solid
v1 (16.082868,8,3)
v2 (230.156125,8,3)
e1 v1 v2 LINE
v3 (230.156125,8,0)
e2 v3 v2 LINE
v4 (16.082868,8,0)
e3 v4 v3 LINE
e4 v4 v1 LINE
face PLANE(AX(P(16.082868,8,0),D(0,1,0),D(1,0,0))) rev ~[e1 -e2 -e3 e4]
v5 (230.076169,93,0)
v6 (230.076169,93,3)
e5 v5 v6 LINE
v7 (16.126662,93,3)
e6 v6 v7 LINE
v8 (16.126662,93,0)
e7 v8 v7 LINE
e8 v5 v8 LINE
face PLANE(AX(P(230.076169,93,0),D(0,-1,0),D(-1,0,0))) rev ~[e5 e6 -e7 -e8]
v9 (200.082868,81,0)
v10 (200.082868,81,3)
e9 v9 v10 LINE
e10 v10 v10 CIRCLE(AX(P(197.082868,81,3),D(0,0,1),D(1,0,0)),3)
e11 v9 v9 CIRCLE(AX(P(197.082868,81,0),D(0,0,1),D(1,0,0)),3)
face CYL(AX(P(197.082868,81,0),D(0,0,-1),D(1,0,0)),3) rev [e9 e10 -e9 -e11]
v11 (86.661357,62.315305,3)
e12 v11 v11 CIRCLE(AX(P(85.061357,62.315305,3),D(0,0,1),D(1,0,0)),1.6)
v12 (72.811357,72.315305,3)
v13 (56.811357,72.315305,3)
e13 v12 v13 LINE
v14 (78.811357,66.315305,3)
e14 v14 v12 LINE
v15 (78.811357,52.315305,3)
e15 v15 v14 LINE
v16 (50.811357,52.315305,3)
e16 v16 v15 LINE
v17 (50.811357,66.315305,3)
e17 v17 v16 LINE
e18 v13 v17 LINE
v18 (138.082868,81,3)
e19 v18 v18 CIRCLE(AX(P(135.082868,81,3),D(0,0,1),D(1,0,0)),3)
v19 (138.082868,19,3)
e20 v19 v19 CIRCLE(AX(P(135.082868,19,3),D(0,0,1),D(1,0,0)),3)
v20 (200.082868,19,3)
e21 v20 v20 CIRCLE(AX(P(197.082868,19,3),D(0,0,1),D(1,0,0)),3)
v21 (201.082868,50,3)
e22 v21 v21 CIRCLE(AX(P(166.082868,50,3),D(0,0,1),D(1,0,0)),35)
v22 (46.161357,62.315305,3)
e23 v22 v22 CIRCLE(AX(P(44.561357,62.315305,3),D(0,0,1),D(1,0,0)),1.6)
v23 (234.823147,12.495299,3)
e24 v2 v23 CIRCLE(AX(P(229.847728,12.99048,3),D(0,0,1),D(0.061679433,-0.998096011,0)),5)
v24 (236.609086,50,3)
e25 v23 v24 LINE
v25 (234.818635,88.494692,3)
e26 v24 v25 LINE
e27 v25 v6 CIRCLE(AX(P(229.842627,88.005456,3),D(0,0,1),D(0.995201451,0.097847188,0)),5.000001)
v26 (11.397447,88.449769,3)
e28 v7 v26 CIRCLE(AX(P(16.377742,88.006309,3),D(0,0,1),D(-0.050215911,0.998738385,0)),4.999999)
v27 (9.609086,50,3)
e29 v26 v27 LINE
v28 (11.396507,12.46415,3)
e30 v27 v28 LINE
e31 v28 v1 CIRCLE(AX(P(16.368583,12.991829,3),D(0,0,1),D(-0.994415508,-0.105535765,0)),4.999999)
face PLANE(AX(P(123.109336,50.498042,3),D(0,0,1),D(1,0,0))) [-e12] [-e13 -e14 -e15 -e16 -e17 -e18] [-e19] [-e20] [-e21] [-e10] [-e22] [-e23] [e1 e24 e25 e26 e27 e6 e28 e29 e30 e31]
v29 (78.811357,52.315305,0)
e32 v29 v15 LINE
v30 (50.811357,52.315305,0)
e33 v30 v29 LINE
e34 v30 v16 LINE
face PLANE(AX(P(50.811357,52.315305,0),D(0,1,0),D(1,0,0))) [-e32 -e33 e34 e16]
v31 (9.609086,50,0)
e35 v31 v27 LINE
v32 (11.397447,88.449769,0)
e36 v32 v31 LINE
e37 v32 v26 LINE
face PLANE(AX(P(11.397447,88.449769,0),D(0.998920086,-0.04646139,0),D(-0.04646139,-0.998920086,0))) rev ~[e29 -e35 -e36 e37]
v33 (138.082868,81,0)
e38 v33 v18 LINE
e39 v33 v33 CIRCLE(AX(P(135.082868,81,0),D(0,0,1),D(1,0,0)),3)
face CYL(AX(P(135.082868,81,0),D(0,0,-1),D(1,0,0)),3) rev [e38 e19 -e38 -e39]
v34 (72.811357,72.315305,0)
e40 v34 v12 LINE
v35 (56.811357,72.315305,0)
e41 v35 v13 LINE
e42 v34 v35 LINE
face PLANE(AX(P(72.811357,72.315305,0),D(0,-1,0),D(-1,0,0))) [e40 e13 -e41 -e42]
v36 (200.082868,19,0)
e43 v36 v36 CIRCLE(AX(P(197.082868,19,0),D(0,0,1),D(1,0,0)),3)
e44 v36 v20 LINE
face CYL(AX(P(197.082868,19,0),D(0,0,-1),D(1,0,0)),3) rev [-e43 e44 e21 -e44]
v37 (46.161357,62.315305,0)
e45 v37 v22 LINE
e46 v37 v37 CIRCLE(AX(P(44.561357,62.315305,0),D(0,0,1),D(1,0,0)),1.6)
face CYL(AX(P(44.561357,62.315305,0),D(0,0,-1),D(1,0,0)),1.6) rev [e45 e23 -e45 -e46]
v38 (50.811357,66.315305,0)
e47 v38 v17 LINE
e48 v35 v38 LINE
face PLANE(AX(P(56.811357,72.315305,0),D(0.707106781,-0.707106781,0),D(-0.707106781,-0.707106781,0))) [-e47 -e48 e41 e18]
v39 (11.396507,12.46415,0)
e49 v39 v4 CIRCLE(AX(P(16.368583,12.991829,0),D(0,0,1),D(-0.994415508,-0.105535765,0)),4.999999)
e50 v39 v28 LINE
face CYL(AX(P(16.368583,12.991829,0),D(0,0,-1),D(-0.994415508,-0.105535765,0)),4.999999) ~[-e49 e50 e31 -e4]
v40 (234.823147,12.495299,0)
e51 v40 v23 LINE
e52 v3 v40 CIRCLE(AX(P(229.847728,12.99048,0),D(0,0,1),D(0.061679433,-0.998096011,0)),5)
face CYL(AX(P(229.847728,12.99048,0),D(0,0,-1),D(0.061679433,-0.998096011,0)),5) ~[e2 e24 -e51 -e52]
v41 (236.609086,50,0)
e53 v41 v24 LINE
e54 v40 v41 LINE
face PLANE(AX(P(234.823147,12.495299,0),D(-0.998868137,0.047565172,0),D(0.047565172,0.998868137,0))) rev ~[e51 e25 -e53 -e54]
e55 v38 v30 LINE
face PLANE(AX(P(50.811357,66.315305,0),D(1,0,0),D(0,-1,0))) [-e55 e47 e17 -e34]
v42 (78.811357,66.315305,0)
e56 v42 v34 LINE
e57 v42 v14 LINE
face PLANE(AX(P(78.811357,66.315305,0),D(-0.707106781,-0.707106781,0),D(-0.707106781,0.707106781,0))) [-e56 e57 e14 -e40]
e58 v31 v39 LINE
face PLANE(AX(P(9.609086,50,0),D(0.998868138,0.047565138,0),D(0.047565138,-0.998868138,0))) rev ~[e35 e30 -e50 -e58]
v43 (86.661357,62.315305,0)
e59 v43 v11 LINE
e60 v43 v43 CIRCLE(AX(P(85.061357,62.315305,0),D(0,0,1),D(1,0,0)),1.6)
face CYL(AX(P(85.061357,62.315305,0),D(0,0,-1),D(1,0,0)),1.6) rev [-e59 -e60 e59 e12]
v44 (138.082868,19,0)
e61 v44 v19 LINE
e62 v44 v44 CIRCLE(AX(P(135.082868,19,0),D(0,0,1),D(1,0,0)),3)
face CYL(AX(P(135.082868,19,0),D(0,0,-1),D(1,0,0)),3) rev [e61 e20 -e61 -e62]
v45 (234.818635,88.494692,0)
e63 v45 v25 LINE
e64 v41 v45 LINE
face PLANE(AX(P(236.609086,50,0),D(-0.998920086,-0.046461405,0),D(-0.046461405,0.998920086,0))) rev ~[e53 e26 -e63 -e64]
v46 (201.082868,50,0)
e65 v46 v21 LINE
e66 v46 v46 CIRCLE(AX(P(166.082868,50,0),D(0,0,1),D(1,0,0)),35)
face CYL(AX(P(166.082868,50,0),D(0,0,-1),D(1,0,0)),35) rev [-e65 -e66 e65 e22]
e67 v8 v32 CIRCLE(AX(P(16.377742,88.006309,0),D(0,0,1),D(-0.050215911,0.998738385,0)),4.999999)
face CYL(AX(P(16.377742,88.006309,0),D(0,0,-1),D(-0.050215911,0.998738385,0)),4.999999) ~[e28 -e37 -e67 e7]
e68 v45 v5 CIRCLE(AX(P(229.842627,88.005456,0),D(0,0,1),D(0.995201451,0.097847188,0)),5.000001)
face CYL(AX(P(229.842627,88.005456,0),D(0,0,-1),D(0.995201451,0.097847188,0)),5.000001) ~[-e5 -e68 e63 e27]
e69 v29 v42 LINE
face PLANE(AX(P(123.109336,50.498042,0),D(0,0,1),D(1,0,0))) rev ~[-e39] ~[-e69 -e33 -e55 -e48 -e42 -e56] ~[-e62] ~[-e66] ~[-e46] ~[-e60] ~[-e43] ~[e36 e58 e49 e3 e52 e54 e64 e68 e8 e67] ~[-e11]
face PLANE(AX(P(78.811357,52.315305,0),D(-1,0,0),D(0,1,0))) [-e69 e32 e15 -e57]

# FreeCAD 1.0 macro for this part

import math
import FreeCAD as App
import Part
import Sketcher
from FreeCAD import Vector

doc = App.newDocument("Part")
body = doc.addObject("PartDesign::Body", "Body")

# Sketch on XY plane
sketch1 = doc.addObject("Sketcher::SketchObject", "Sketch")
body.addObject(sketch1)
sketch1.AttachmentSupport = (doc.XY_Plane, [""])
sketch1.MapMode = "FlatFace"
sketch1.addGeometry([
    Part.LineSegment(Vector(16.1, 8, 0), Vector(230.2, 8, 0)),  # 0
    Part.ArcOfCircle(Part.Circle(Vector(229.8, 13, 0), Vector(0, 0, 1), 5), math.radians(-86), math.radians(-6)),  # 1
    Part.LineSegment(Vector(234.8, 12.5, 0), Vector(236.6, 50, 0)),  # 2
    Part.LineSegment(Vector(236.6, 50, 0), Vector(234.8, 88.5, 0)),  # 3
    Part.ArcOfCircle(Part.Circle(Vector(229.8, 88, 0), Vector(0, 0, 1), 5), math.radians(6), math.radians(87)),  # 4
    Part.LineSegment(Vector(230.1, 93, 0), Vector(16.1, 93, 0)),  # 5
    Part.ArcOfCircle(Part.Circle(Vector(16.4, 88, 0), Vector(0, 0, 1), 5), math.radians(93), math.radians(175)),  # 6
    Part.LineSegment(Vector(11.4, 88.4, 0), Vector(9.6, 50, 0)),  # 7
    Part.LineSegment(Vector(9.6, 50, 0), Vector(11.4, 12.5, 0)),  # 8
    Part.ArcOfCircle(Part.Circle(Vector(16.4, 13, 0), Vector(0, 0, 1), 5), math.radians(-174), math.radians(-93)),  # 9
    Part.Circle(Vector(135.1, 19, 0), Vector(0, 0, 1), 3),  # 10
    Part.Circle(Vector(197.1, 19, 0), Vector(0, 0, 1), 3),  # 11
    Part.Circle(Vector(44.6, 62.3, 0), Vector(0, 0, 1), 1.6),  # 12
    Part.LineSegment(Vector(72.8, 72.3, 0), Vector(78.8, 66.3, 0)),  # 13
    Part.LineSegment(Vector(78.8, 66.3, 0), Vector(78.8, 52.3, 0)),  # 14
    Part.LineSegment(Vector(78.8, 52.3, 0), Vector(50.8, 52.3, 0)),  # 15
    Part.LineSegment(Vector(50.8, 52.3, 0), Vector(50.8, 66.3, 0)),  # 16
    Part.LineSegment(Vector(50.8, 66.3, 0), Vector(56.8, 72.3, 0)),  # 17
    Part.LineSegment(Vector(56.8, 72.3, 0), Vector(72.8, 72.3, 0)),  # 18
    Part.Circle(Vector(85.1, 62.3, 0), Vector(0, 0, 1), 1.6),  # 19
    Part.Circle(Vector(166.1, 50, 0), Vector(0, 0, 1), 35),  # 20
    Part.Circle(Vector(135.1, 81, 0), Vector(0, 0, 1), 3),  # 21
    Part.Circle(Vector(197.1, 81, 0), Vector(0, 0, 1), 3),  # 22
], False)
sketch1.addConstraint([
    Sketcher.Constraint("Coincident", 0, 2, 1, 1),
    Sketcher.Constraint("Coincident", 1, 2, 2, 1),
    Sketcher.Constraint("Coincident", 2, 2, 3, 1),
    Sketcher.Constraint("Coincident", 3, 2, 4, 1),
    Sketcher.Constraint("Coincident", 4, 2, 5, 1),
    Sketcher.Constraint("Coincident", 5, 2, 6, 1),
    Sketcher.Constraint("Coincident", 6, 2, 7, 1),
    Sketcher.Constraint("Coincident", 7, 2, 8, 1),
    Sketcher.Constraint("Coincident", 8, 2, 9, 1),
    Sketcher.Constraint("Coincident", 9, 2, 0, 1),
    Sketcher.Constraint("Coincident", 13, 2, 14, 1),
    Sketcher.Constraint("Coincident", 14, 2, 15, 1),
    Sketcher.Constraint("Coincident", 15, 2, 16, 1),
    Sketcher.Constraint("Coincident", 16, 2, 17, 1),
    Sketcher.Constraint("Coincident", 17, 2, 18, 1),
    Sketcher.Constraint("Coincident", 18, 2, 13, 1),
    Sketcher.Constraint("Horizontal", 0),
    Sketcher.Constraint("Horizontal", 5),
    Sketcher.Constraint("Vertical", 14),
    Sketcher.Constraint("Horizontal", 15),
    Sketcher.Constraint("Vertical", 16),
    Sketcher.Constraint("Horizontal", 18),
    Sketcher.Constraint("Equal", 1, 4),
    Sketcher.Constraint("Equal", 1, 6),
    Sketcher.Constraint("Equal", 6, 9),
    Sketcher.Constraint("Equal", 10, 11),
    Sketcher.Constraint("Equal", 12, 19),
    Sketcher.Constraint("Equal", 11, 21),
    Sketcher.Constraint("Equal", 21, 22),
    Sketcher.Constraint("Perpendicular", 13, 17),
    Sketcher.Constraint("Horizontal", 10, 3, 11, 3),
    Sketcher.Constraint("Horizontal", 12, 3, 19, 3),
    Sketcher.Constraint("Horizontal", 21, 3, 22, 3),
    Sketcher.Constraint("Horizontal", 20, 3, 2, 2),
    Sketcher.Constraint("Horizontal", 2, 2, 7, 2),
    Sketcher.Constraint("Horizontal", 13, 2, 16, 2),
    Sketcher.Constraint("Vertical", 10, 3, 21, 3),
    Sketcher.Constraint("Vertical", 11, 3, 22, 3),
    Sketcher.Constraint("Equal", 13, 17),
    Sketcher.Constraint("Diameter", 10, 6.0),
    Sketcher.Constraint("Diameter", 20, 70.0),
    Sketcher.Constraint("Radius", 1, 5.0),
    Sketcher.Constraint("Diameter", 12, 3.2),
    Sketcher.Constraint("DistanceX", 15, 2, 15, 1, 28.0),
    Sketcher.Constraint("DistanceX", 18, 1, 18, 2, 16.0),
    Sketcher.Constraint("DistanceY", 14, 2, 14, 1, 14.0),
    Sketcher.Constraint("DistanceY", -1, 1, 10, 3, 19.0),
    Sketcher.Constraint("DistanceY", -1, 1, 20, 3, 50.0),
    Sketcher.Constraint("DistanceY", -1, 1, 21, 3, 81.0),
    Sketcher.Constraint("DistanceY", -1, 1, 0, 2, 8.0),
    Sketcher.Constraint("DistanceY", -1, 1, 4, 2, 93.0),
    Sketcher.Constraint("DistanceX", 10, 3, 11, 3, 62.0),
    Sketcher.Constraint("DistanceX", 10, 3, 20, 3, 31.0),
    Sketcher.Constraint("DistanceY", 19, 3, 13, 2, 4.0),
    Sketcher.Constraint("DistanceX", 12, 3, 19, 3, 40.5),
    Sketcher.Constraint("DistanceX", 13, 2, 19, 3, 6.25),
    Sketcher.Constraint("Distance", 2, 37.547199),
    Sketcher.Constraint("DistanceY", -1, 1, 1, 2, 12.495299),
    Sketcher.Constraint("DistanceX", 4, 3, 1, 3, 0.005101),
    Sketcher.Constraint("DistanceX", 4, 3, 0, 2, 0.313498),
    Sketcher.Constraint("DistanceX", 22, 3, 4, 2, 32.993301),
    Sketcher.Constraint("DistanceX", 0, 1, 0, 2, 214.073257),
    Sketcher.Constraint("DistanceX", 5, 2, 5, 1, 213.949507),
    Sketcher.Constraint("DistanceX", -1, 1, 6, 3, 16.377742),
    Sketcher.Constraint("DistanceY", -1, 1, 6, 3, 88.006309),
    Sketcher.Constraint("DistanceY", -1, 1, 9, 3, 12.991829),
    Sketcher.Constraint("DistanceY", -1, 1, 3, 2, 88.494692),
    Sketcher.Constraint("DistanceY", -1, 1, 6, 2, 88.449769),
    Sketcher.Constraint("DistanceY", -1, 1, 8, 2, 12.46415),
    Sketcher.Constraint("DistanceX", -1, 1, 9, 2, 16.082868),
    Sketcher.Constraint("DistanceX", 12, 3, 10, 3, 90.521511),
    Sketcher.Constraint("DistanceY", 12, 3, 4, 3, 25.690151),
    Sketcher.Constraint("DistanceX", 7, 2, 12, 3, 34.952271),
])
pad1 = doc.addObject("PartDesign::Pad", "Pad")
body.addObject(pad1)
pad1.Profile = sketch1
pad1.Length = 3

doc.recompute()
